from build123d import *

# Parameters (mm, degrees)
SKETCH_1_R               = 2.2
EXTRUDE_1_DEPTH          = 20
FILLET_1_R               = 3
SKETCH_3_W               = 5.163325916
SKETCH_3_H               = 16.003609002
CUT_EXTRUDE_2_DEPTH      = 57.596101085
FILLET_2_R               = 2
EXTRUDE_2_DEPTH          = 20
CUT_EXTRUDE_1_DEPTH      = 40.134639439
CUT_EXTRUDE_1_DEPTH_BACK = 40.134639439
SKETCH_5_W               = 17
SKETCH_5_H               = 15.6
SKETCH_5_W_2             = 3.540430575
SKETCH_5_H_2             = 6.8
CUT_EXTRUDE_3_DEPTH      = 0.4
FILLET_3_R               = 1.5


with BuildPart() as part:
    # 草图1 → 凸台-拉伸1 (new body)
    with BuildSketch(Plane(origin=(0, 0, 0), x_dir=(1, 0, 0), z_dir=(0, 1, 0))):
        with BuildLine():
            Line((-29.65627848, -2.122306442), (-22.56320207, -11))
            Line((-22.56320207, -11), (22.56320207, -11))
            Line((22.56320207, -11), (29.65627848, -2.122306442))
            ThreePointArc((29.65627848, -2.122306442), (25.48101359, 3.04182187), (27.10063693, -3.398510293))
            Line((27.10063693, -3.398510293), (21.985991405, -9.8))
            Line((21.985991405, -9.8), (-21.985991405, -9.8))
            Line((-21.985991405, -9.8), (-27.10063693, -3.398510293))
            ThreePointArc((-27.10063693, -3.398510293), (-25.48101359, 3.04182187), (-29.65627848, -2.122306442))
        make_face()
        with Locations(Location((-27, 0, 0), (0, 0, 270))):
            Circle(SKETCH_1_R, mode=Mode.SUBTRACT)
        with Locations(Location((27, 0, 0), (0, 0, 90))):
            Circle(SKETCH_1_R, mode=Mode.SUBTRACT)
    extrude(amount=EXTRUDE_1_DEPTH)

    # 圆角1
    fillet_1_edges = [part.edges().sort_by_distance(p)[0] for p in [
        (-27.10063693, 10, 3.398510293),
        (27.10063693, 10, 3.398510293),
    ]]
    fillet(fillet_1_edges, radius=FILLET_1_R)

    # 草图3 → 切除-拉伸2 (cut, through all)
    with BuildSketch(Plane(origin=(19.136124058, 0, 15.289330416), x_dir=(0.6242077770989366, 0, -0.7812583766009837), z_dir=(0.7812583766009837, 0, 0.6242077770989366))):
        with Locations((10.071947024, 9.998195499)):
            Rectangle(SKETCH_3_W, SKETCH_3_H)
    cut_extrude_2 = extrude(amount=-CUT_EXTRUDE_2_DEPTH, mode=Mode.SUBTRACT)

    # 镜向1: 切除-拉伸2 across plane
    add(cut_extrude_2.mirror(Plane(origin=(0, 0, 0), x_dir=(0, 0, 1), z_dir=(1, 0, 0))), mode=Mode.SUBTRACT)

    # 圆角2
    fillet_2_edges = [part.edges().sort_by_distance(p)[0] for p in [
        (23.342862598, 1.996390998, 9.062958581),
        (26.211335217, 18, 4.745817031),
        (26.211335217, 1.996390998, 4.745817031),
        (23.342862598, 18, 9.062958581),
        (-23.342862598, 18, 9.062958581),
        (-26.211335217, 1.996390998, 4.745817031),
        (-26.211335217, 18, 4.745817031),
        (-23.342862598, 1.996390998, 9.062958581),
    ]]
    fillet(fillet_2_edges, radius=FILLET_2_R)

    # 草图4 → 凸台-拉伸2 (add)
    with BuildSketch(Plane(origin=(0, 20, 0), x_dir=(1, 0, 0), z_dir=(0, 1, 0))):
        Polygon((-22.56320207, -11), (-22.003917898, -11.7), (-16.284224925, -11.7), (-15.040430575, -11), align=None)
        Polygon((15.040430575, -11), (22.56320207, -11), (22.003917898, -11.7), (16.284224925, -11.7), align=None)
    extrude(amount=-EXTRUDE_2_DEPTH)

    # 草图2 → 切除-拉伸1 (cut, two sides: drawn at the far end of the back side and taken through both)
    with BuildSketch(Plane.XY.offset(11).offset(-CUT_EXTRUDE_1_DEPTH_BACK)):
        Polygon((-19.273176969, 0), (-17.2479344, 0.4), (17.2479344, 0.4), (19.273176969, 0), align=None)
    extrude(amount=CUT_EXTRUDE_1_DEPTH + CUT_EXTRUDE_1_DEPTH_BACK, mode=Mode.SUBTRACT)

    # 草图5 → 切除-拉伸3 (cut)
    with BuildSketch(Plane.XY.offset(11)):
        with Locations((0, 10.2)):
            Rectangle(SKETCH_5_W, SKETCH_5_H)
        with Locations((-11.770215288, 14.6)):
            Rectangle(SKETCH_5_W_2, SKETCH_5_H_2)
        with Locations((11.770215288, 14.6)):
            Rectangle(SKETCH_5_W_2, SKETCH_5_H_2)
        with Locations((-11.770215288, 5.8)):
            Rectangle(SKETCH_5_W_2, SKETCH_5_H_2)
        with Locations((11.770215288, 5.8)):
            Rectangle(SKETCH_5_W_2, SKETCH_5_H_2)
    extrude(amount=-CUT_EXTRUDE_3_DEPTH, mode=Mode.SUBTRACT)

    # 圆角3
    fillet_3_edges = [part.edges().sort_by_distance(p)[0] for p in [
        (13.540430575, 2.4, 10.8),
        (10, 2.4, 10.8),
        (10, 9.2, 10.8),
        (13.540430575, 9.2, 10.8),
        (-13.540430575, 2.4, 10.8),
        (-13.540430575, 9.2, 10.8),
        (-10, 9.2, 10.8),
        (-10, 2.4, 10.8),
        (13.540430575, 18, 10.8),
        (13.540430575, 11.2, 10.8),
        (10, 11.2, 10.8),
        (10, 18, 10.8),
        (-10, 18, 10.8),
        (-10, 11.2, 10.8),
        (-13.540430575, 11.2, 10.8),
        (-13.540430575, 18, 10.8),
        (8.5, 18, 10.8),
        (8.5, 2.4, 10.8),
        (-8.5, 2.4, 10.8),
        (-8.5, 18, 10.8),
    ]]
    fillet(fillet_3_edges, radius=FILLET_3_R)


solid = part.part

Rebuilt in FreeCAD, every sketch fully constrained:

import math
import FreeCAD as App
import Part
import Sketcher

V = App.Vector


def edges_at(feature, points):
    """Names of the edges that pass closest to the given points."""
    edges = feature.Shape.Edges
    near = lambda p: min(range(len(edges)), key=lambda i: edges[i].distToShape(Part.Vertex(*p))[0])
    return sorted({f"Edge{near(p) + 1}" for p in points})

doc = App.newDocument("Part")
body = doc.addObject("PartDesign::Body", "Body")

# Sketch on XZ plane
sketch1 = doc.addObject("Sketcher::SketchObject", "Sketch")
body.addObject(sketch1)
sketch1.AttachmentSupport = (doc.XZ_Plane, [""])
sketch1.MapMode = "FlatFace"
sketch1.addGeometry([
    Part.LineSegment(V(-29.7, 2.1, 0), V(-22.6, 11, 0)),  # 0
    Part.LineSegment(V(-22.6, 11, 0), V(22.6, 11, 0)),  # 1
    Part.LineSegment(V(22.6, 11, 0), V(29.7, 2.1, 0)),  # 2
    Part.ArcOfCircle(Part.Circle(V(27, 0, 0), V(0, 0, 1), 3.4), math.radians(88), math.radians(399)),  # 3
    Part.LineSegment(V(27.1, 3.4, 0), V(22, 9.8, 0)),  # 4
    Part.LineSegment(V(22, 9.8, 0), V(-22, 9.8, 0)),  # 5
    Part.LineSegment(V(-22, 9.8, 0), V(-27.1, 3.4, 0)),  # 6
    Part.ArcOfCircle(Part.Circle(V(-27, 0, 0), V(0, 0, 1), 3.4), math.radians(141), math.radians(452)),  # 7
    Part.Circle(V(-27, 0, 0), V(0, 0, 1), 2.2),  # 8
    Part.Circle(V(27, 0, 0), V(0, 0, 1), 2.2),  # 9
], False)
sketch1.addConstraint([
    Sketcher.Constraint("Coincident", 0, 2, 1, 1),
    Sketcher.Constraint("Coincident", 1, 2, 2, 1),
    Sketcher.Constraint("Tangent", 2, 2, 3, 2),
    Sketcher.Constraint("Coincident", 3, 1, 4, 1),
    Sketcher.Constraint("Coincident", 4, 2, 5, 1),
    Sketcher.Constraint("Coincident", 5, 2, 6, 1),
    Sketcher.Constraint("Coincident", 6, 2, 7, 2),
    Sketcher.Constraint("Tangent", 7, 1, 0, 1),
    Sketcher.Constraint("Horizontal", 1),
    Sketcher.Constraint("Horizontal", 5),
    Sketcher.Constraint("Coincident", 8, 3, 7, 3),
    Sketcher.Constraint("Coincident", 9, 3, 3, 3),
    Sketcher.Constraint("Equal", 3, 7),
    Sketcher.Constraint("Equal", 8, 9),
    Sketcher.Constraint("Symmetric", 3, 3, 7, 3, -1, 1),
    Sketcher.Constraint("Symmetric", 3, 1, 6, 2, -2),
    Sketcher.Constraint("Parallel", 2, 4),
    Sketcher.Constraint("Parallel", 0, 6),
    Sketcher.Constraint("Horizontal", 2, 2, 7, 1),
    Sketcher.Constraint("Diameter", 8, 4.4),
    Sketcher.Constraint("Radius", 3, 3.4),
    Sketcher.Constraint("DistanceX", -1, 1, 3, 3, 27.0),
    Sketcher.Constraint("DistanceY", -1, 1, 0, 2, 11.0),
    Sketcher.Constraint("DistanceY", -1, 1, 4, 2, 9.8),
    Sketcher.Constraint("Distance", 4, 8.193819),
    Sketcher.Constraint("DistanceX", 1, 1, 1, 2, 45.126404),
])
pad1 = doc.addObject("PartDesign::Pad", "Pad")
body.addObject(pad1)
pad1.Profile = sketch1
pad1.Length = 20
pad1.Reversed = True
doc.recompute()

fillet = doc.addObject("PartDesign::Fillet", "Fillet")
body.addObject(fillet)
fillet.Base = (pad1, edges_at(pad1, [(-27.101, 10, 3.399), (27.101, 10, 3.399)]))
fillet.Radius = 3

# Sketch on an angled plane
sketch2 = doc.addObject("Sketcher::SketchObject", "Sketch001")
body.addObject(sketch2)
sketch2.Placement = App.Placement(V(19.136124, 0, 15.28933), App.Rotation(V(0.624207777, 0, -0.781258377), V(0, 1, 0), V(0.781258377, 0, 0.624207777), "ZXY"))
sketch2.addGeometry([
    Part.LineSegment(V(7, 18, 0), V(7, 2, 0)),
    Part.LineSegment(V(7, 2, 0), V(13, 2, 0)),
    Part.LineSegment(V(13, 2, 0), V(13, 18, 0)),
    Part.LineSegment(V(13, 18, 0), V(7, 18, 0)),
], False)
sketch2.addConstraint([
    Sketcher.Constraint("Coincident", 0, 2, 1, 1),
    Sketcher.Constraint("Coincident", 1, 2, 2, 1),
    Sketcher.Constraint("Coincident", 2, 2, 3, 1),
    Sketcher.Constraint("Coincident", 3, 2, 0, 1),
    Sketcher.Constraint("Vertical", 0),
    Sketcher.Constraint("Horizontal", 1),
    Sketcher.Constraint("Vertical", 2),
    Sketcher.Constraint("Horizontal", 3),
    Sketcher.Constraint("DistanceY", -1, 1, 2, 2, 18.0),
    Sketcher.Constraint("DistanceY", 0, 2, 0, 1, 16.003609),
    Sketcher.Constraint("DistanceX", 1, 1, 1, 2, 5.163326),
    Sketcher.Constraint("DistanceX", -1, 1, 1, 2, 12.65361),
])
pocket1 = doc.addObject("PartDesign::Pocket", "Pocket")
body.addObject(pocket1)
pocket1.Profile = sketch2
pocket1.Type = "ThroughAll"
doc.recompute()

mirrored = doc.addObject("PartDesign::Mirrored", "Mirrored")
body.addObject(mirrored)
mirrored.Originals = [pocket1]
mirrored.MirrorPlane = (doc.YZ_Plane, [""])
body.Tip = mirrored
doc.recompute()

fillet2 = doc.addObject("PartDesign::Fillet", "Fillet001")
body.addObject(fillet2)
fillet2.Base = (mirrored, edges_at(mirrored, [
    (23.343, 1.996, 9.063),
    (26.211, 18, 4.746),
    (26.211, 1.996, 4.746),
    (23.343, 18, 9.063),
    (-23.343, 18, 9.063),
    (-26.211, 1.996, 4.746),
    (-26.211, 18, 4.746),
    (-23.343, 1.996, 9.063),
]))
fillet2.Radius = 2

# Sketch on XZ plane
sketch3 = doc.addObject("Sketcher::SketchObject", "Sketch002")
body.addObject(sketch3)
sketch3.AttachmentSupport = (doc.XZ_Plane, [""])
sketch3.MapMode = "FlatFace"
sketch3.AttachmentOffset = App.Placement(V(0, 0, -20), App.Rotation())
sketch3.addGeometry([
    Part.LineSegment(V(-22.6, 11, 0), V(-22, 11.7, 0)),  # 0
    Part.LineSegment(V(-22, 11.7, 0), V(-16.3, 11.7, 0)),  # 1
    Part.LineSegment(V(-16.3, 11.7, 0), V(-15, 11, 0)),  # 2
    Part.LineSegment(V(-15, 11, 0), V(-22.6, 11, 0)),  # 3
    Part.LineSegment(V(22.6, 11, 0), V(15, 11, 0)),  # 4
    Part.LineSegment(V(15, 11, 0), V(16.3, 11.7, 0)),  # 5
    Part.LineSegment(V(16.3, 11.7, 0), V(22, 11.7, 0)),  # 6
    Part.LineSegment(V(22, 11.7, 0), V(22.6, 11, 0)),  # 7
], False)
sketch3.addConstraint([
    Sketcher.Constraint("Coincident", 0, 2, 1, 1),
    Sketcher.Constraint("Coincident", 1, 2, 2, 1),
    Sketcher.Constraint("Coincident", 2, 2, 3, 1),
    Sketcher.Constraint("Coincident", 3, 2, 0, 1),
    Sketcher.Constraint("Coincident", 4, 2, 5, 1),
    Sketcher.Constraint("Coincident", 5, 2, 6, 1),
    Sketcher.Constraint("Coincident", 6, 2, 7, 1),
    Sketcher.Constraint("Coincident", 7, 2, 4, 1),
    Sketcher.Constraint("Horizontal", 1),
    Sketcher.Constraint("Horizontal", 3),
    Sketcher.Constraint("Horizontal", 4),
    Sketcher.Constraint("Horizontal", 6),
    Sketcher.Constraint("Symmetric", 2, 2, 4, 2, -2),
    Sketcher.Constraint("Symmetric", 1, 2, 5, 2, -2),
    Sketcher.Constraint("Equal", 3, 4),
    Sketcher.Constraint("Equal", 1, 6),
    Sketcher.Constraint("DistanceY", -1, 1, 2, 2, 11.0),
    Sketcher.Constraint("DistanceY", -1, 1, 0, 2, 11.7),
    Sketcher.Constraint("DistanceX", 3, 2, 3, 1, 7.522771),
    Sketcher.Constraint("Distance", 0, 0.89599),
    Sketcher.Constraint("DistanceX", 1, 1, 1, 2, 5.719693),
    Sketcher.Constraint("DistanceX", 2, 2, -1, 1, 15.040431),
])
pad2 = doc.addObject("PartDesign::Pad", "Pad001")
body.addObject(pad2)
pad2.Profile = sketch3
pad2.Length = 20

# Sketch on XY plane
sketch4 = doc.addObject("Sketcher::SketchObject", "Sketch003")
body.addObject(sketch4)
sketch4.AttachmentSupport = (doc.XY_Plane, [""])
sketch4.MapMode = "FlatFace"
sketch4.AttachmentOffset = App.Placement(V(0, 0, 11), App.Rotation())
sketch4.addGeometry([
    Part.LineSegment(V(-17.2, 0.4, 0), V(-19.3, 0, 0)),
    Part.LineSegment(V(-19.3, 0, 0), V(19.3, 0, 0)),
    Part.LineSegment(V(19.3, 0, 0), V(17.2, 0.4, 0)),
    Part.LineSegment(V(17.2, 0.4, 0), V(-17.2, 0.4, 0)),
], False)
sketch4.addConstraint([
    Sketcher.Constraint("Coincident", 0, 2, 1, 1),
    Sketcher.Constraint("Coincident", 1, 2, 2, 1),
    Sketcher.Constraint("Coincident", 2, 2, 3, 1),
    Sketcher.Constraint("Coincident", 3, 2, 0, 1),
    Sketcher.Constraint("Horizontal", 1),
    Sketcher.Constraint("Horizontal", 3),
    Sketcher.Constraint("Symmetric", 0, 2, 1, 2, -1, 1),
    Sketcher.Constraint("Equal", 0, 2),
    Sketcher.Constraint("DistanceY", -1, 1, 2, 2, 0.4),
    Sketcher.Constraint("DistanceX", 3, 2, 3, 1, 34.495869),
    Sketcher.Constraint("DistanceX", 1, 1, 1, 2, 38.546354),
])
pocket2 = doc.addObject("PartDesign::Pocket", "Pocket001")
body.addObject(pocket2)
pocket2.Profile = sketch4
pocket2.Type = "ThroughAll"
pocket2.Midplane = True

# Sketch on XY plane
sketch5 = doc.addObject("Sketcher::SketchObject", "Sketch004")
body.addObject(sketch5)
sketch5.AttachmentSupport = (doc.XY_Plane, [""])
sketch5.MapMode = "FlatFace"
sketch5.AttachmentOffset = App.Placement(V(0, 0, 11), App.Rotation())
sketch5.addGeometry([
    Part.LineSegment(V(-8.5, 18, 0), V(-8.5, 2.4, 0)),  # 0
    Part.LineSegment(V(-8.5, 2.4, 0), V(8.5, 2.4, 0)),  # 1
    Part.LineSegment(V(8.5, 2.4, 0), V(8.5, 18, 0)),  # 2
    Part.LineSegment(V(8.5, 18, 0), V(-8.5, 18, 0)),  # 3
    Part.LineSegment(V(-13.5, 18, 0), V(-13.5, 11.2, 0)),  # 4
    Part.LineSegment(V(-13.5, 11.2, 0), V(-10, 11.2, 0)),  # 5
    Part.LineSegment(V(-10, 11.2, 0), V(-10, 18, 0)),  # 6
    Part.LineSegment(V(-10, 18, 0), V(-13.5, 18, 0)),  # 7
    Part.LineSegment(V(10, 18, 0), V(10, 11.2, 0)),  # 8
    Part.LineSegment(V(10, 11.2, 0), V(13.5, 11.2, 0)),  # 9
    Part.LineSegment(V(13.5, 11.2, 0), V(13.5, 18, 0)),  # 10
    Part.LineSegment(V(13.5, 18, 0), V(10, 18, 0)),  # 11
    Part.LineSegment(V(-13.5, 9.2, 0), V(-13.5, 2.4, 0)),  # 12
    Part.LineSegment(V(-13.5, 2.4, 0), V(-10, 2.4, 0)),  # 13
    Part.LineSegment(V(-10, 2.4, 0), V(-10, 9.2, 0)),  # 14
    Part.LineSegment(V(-10, 9.2, 0), V(-13.5, 9.2, 0)),  # 15
    Part.LineSegment(V(10, 9.2, 0), V(10, 2.4, 0)),  # 16
    Part.LineSegment(V(10, 2.4, 0), V(13.5, 2.4, 0)),  # 17
    Part.LineSegment(V(13.5, 2.4, 0), V(13.5, 9.2, 0)),  # 18
    Part.LineSegment(V(13.5, 9.2, 0), V(10, 9.2, 0)),  # 19
], False)
sketch5.addConstraint([
    Sketcher.Constraint("Coincident", 0, 2, 1, 1),
    Sketcher.Constraint("Coincident", 1, 2, 2, 1),
    Sketcher.Constraint("Coincident", 2, 2, 3, 1),
    Sketcher.Constraint("Coincident", 3, 2, 0, 1),
    Sketcher.Constraint("Coincident", 4, 2, 5, 1),
    Sketcher.Constraint("Coincident", 5, 2, 6, 1),
    Sketcher.Constraint("Coincident", 6, 2, 7, 1),
    Sketcher.Constraint("Coincident", 7, 2, 4, 1),
    Sketcher.Constraint("Coincident", 8, 2, 9, 1),
    Sketcher.Constraint("Coincident", 9, 2, 10, 1),
    Sketcher.Constraint("Coincident", 10, 2, 11, 1),
    Sketcher.Constraint("Coincident", 11, 2, 8, 1),
    Sketcher.Constraint("Coincident", 12, 2, 13, 1),
    Sketcher.Constraint("Coincident", 13, 2, 14, 1),
    Sketcher.Constraint("Coincident", 14, 2, 15, 1),
    Sketcher.Constraint("Coincident", 15, 2, 12, 1),
    Sketcher.Constraint("Coincident", 16, 2, 17, 1),
    Sketcher.Constraint("Coincident", 17, 2, 18, 1),
    Sketcher.Constraint("Coincident", 18, 2, 19, 1),
    Sketcher.Constraint("Coincident", 19, 2, 16, 1),
    Sketcher.Constraint("Vertical", 0),
    Sketcher.Constraint("Horizontal", 1),
    Sketcher.Constraint("Vertical", 2),
    Sketcher.Constraint("Horizontal", 3),
    Sketcher.Constraint("Vertical", 4),
    Sketcher.Constraint("Horizontal", 5),
    Sketcher.Constraint("Vertical", 6),
    Sketcher.Constraint("Horizontal", 7),
    Sketcher.Constraint("Vertical", 8),
    Sketcher.Constraint("Horizontal", 9),
    Sketcher.Constraint("Vertical", 10),
    Sketcher.Constraint("Horizontal", 11),
    Sketcher.Constraint("Vertical", 12),
    Sketcher.Constraint("Horizontal", 13),
    Sketcher.Constraint("Vertical", 14),
    Sketcher.Constraint("Horizontal", 15),
    Sketcher.Constraint("Vertical", 16),
    Sketcher.Constraint("Horizontal", 17),
    Sketcher.Constraint("Vertical", 18),
    Sketcher.Constraint("Horizontal", 19),
    Sketcher.Constraint("Symmetric", 5, 2, 8, 2, -2),
    Sketcher.Constraint("Symmetric", 7, 2, 10, 2, -2),
    Sketcher.Constraint("Symmetric", 13, 2, 16, 2, -2),
    Sketcher.Constraint("Symmetric", 15, 2, 18, 2, -2),
    Sketcher.Constraint("Horizontal", 3, 2, 6, 2),
    Sketcher.Constraint("Horizontal", 1, 2, 12, 2),
    Sketcher.Constraint("Vertical", 7, 2, 12, 2),
    Sketcher.Constraint("Vertical", 6, 2, 13, 2),
    Sketcher.Constraint("Equal", 10, 12),
    Sketcher.Constraint("DistanceX", 1, 1, 1, 2, 17.0),
    Sketcher.Constraint("DistanceY", 0, 2, 0, 1, 15.6),
    Sketcher.Constraint("DistanceY", 4, 2, 4, 1, 6.8),
    Sketcher.Constraint("DistanceY", -1, 1, 2, 2, 18.0),
    Sketcher.Constraint("DistanceX", 5, 2, -1, 1, 10.0),
    Sketcher.Constraint("DistanceX", 0, 2, -1, 1, 8.5),
    Sketcher.Constraint("DistanceX", 5, 1, 5, 2, 3.540431),
])
pocket3 = doc.addObject("PartDesign::Pocket", "Pocket002")
body.addObject(pocket3)
pocket3.Profile = sketch5
pocket3.Length = 0.4
doc.recompute()

fillet3 = doc.addObject("PartDesign::Fillet", "Fillet002")
body.addObject(fillet3)
fillet3.Base = (pocket3, edges_at(pocket3, [
    (13.54, 2.4, 10.8),
    (10, 2.4, 10.8),
    (10, 9.2, 10.8),
    (13.54, 9.2, 10.8),
    (-13.54, 2.4, 10.8),
    (-13.54, 9.2, 10.8),
    (-10, 9.2, 10.8),
    (-10, 2.4, 10.8),
    (13.54, 18, 10.8),
    (13.54, 11.2, 10.8),
    (10, 11.2, 10.8),
    (10, 18, 10.8),
    (-10, 18, 10.8),
    (-10, 11.2, 10.8),
    (-13.54, 11.2, 10.8),
    (-13.54, 18, 10.8),
    (8.5, 18, 10.8),
    (8.5, 2.4, 10.8),
    (-8.5, 2.4, 10.8),
    (-8.5, 18, 10.8),
]))
fillet3.Radius = 1.5

doc.recompute()
